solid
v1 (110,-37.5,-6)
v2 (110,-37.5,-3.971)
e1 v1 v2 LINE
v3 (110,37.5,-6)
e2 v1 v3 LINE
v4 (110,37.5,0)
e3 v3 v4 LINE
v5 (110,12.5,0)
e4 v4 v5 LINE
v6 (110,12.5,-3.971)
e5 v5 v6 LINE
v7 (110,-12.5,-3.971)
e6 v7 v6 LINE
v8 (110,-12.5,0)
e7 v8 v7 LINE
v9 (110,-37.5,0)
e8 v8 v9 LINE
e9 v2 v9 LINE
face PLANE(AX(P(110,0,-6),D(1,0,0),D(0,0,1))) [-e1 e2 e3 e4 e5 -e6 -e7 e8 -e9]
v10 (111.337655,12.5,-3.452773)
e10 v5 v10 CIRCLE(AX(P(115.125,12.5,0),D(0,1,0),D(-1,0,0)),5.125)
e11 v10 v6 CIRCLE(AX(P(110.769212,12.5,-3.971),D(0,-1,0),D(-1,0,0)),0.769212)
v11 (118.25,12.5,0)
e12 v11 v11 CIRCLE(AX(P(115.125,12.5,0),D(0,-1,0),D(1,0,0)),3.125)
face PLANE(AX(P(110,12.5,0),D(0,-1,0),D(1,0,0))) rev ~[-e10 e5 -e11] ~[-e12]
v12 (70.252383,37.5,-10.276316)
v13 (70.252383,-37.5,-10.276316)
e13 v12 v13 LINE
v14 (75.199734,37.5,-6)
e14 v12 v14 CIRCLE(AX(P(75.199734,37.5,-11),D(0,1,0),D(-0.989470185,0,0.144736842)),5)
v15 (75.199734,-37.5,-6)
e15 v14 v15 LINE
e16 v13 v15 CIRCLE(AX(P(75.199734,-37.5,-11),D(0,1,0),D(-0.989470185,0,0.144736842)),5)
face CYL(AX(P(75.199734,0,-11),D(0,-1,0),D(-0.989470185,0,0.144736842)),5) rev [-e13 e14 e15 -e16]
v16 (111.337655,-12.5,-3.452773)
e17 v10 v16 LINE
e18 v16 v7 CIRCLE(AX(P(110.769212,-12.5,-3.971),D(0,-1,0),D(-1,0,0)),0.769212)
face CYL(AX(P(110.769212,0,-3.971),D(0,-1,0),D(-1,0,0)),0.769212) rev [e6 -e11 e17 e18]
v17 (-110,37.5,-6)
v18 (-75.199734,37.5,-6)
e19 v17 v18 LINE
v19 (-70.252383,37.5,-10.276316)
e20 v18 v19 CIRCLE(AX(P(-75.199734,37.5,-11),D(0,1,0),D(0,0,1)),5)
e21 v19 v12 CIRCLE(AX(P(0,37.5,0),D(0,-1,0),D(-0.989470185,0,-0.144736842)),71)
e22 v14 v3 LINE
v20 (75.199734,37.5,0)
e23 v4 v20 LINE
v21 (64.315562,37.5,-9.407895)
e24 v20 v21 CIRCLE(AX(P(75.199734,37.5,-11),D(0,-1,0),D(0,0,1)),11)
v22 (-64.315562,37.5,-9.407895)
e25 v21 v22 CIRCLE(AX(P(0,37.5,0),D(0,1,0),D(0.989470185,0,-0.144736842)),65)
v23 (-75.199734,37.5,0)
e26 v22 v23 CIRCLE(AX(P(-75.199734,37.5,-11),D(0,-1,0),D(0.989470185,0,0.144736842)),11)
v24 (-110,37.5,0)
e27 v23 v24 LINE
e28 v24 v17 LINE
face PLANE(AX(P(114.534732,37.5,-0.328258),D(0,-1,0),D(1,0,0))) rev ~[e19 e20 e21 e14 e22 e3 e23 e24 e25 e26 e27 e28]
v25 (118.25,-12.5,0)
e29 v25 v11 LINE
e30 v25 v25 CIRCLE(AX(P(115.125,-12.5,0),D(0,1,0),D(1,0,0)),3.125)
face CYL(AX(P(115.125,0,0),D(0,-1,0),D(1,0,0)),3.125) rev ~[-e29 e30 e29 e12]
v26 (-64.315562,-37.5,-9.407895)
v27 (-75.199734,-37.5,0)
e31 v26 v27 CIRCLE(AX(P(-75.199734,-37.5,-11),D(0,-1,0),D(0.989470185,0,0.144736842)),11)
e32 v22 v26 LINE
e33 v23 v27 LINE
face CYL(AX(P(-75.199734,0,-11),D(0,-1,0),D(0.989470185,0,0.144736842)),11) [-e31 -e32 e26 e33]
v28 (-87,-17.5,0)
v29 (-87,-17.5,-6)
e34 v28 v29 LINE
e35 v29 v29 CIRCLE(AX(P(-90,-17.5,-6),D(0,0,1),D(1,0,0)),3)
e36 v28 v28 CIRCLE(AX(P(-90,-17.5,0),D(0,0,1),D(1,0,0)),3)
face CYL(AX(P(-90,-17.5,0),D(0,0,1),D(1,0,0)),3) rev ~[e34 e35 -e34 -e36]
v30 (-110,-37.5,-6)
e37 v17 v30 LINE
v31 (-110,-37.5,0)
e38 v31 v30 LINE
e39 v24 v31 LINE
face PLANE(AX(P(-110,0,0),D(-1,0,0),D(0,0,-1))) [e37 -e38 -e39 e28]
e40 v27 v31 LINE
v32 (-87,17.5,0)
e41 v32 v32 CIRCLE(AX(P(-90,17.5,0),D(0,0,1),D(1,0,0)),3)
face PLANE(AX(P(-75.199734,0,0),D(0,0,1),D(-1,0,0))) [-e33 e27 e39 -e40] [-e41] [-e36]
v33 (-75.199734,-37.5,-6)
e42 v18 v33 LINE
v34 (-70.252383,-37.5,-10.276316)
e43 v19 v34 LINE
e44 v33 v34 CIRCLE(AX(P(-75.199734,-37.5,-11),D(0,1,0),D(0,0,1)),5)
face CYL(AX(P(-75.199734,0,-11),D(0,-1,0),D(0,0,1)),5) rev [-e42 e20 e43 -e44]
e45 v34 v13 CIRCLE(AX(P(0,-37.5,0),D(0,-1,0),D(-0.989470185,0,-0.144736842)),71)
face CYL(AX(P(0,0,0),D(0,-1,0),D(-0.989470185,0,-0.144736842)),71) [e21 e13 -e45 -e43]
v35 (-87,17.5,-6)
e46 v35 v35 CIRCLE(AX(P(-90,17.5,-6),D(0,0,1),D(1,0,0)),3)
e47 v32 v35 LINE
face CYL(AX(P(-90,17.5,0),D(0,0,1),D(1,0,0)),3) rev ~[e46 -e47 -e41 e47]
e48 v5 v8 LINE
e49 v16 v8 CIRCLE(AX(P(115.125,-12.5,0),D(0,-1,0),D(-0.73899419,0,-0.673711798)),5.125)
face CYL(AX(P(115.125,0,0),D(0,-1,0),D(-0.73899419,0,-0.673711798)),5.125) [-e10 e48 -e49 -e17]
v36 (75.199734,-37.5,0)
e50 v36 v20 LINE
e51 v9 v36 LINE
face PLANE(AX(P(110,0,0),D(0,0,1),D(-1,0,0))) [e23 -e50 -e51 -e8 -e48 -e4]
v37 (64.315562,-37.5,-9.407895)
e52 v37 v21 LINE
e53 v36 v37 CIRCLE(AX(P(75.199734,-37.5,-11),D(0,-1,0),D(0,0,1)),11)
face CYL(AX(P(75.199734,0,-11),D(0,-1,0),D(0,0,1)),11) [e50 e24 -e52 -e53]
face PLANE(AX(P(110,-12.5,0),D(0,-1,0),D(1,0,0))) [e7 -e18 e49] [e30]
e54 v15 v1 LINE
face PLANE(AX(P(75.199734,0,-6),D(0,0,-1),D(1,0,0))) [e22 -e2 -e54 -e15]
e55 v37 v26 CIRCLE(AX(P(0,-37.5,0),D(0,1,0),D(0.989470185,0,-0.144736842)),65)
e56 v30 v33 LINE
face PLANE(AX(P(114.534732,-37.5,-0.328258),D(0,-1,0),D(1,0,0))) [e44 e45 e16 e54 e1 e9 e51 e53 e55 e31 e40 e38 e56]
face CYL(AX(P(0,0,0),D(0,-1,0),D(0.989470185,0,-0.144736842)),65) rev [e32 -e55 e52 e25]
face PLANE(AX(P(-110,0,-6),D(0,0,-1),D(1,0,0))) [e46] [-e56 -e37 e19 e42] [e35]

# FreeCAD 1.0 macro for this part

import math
import FreeCAD as App
import Part
import Sketcher

V = App.Vector
Q = App.Units.Quantity


def add_polygon(sketch, points):
    """Adds a closed chain of lines whose ends are joined by coincident constraints."""
    first, n = sketch.GeometryCount, len(points)
    for a, b in zip(points, points[1:] + points[:1]):
        sketch.addGeometry(Part.LineSegment(App.Vector(*a, 0), App.Vector(*b, 0)), False)
    for i in range(n):
        sketch.addConstraint(Sketcher.Constraint("Coincident", first + i, 2, first + (i + 1) % n, 1))

doc = App.newDocument("Part")
body = doc.addObject("PartDesign::Body", "Body")

sketch1 = body.newObject("Sketcher::SketchObject", "Sketch")
sketch1.AttachmentSupport = (doc.getObject("XZ_Plane"), [""])
sketch1.MapMode = "FlatFace"
sketch1.addGeometry(Part.ArcOfCircle(Part.Circle(V(0, 0, 0), V(0, 0, 1), 65), math.radians(-172), math.radians(-8)), False)
sketch1.addGeometry(Part.ArcOfCircle(Part.Circle(V(-75, -11, 0), V(0, 0, 1), 11), math.radians(8), math.radians(90)), False)
sketch1.addGeometry(Part.LineSegment(V(-75, 0, 0), V(-110, 0, 0)), False)
sketch1.addGeometry(Part.LineSegment(V(-110, 0, 0), V(-110, -6, 0)), False)
sketch1.addGeometry(Part.LineSegment(V(-110, -6, 0), V(-75, -6, 0)), False)
sketch1.addGeometry(Part.ArcOfCircle(Part.Circle(V(-75, -11, 0), V(0, 0, 1), 5), math.radians(8), math.radians(90)), False)
sketch1.addGeometry(Part.ArcOfCircle(Part.Circle(V(0, 0, 0), V(0, 0, 1), 71), math.radians(-172), math.radians(-8)), False)
sketch1.addGeometry(Part.ArcOfCircle(Part.Circle(V(75, -11, 0), V(0, 0, 1), 5), math.radians(90), math.radians(172)), False)
sketch1.addGeometry(Part.LineSegment(V(75, -6, 0), V(110, -6, 0)), False)
sketch1.addGeometry(Part.LineSegment(V(110, -6, 0), V(110, 0, 0)), False)
sketch1.addGeometry(Part.LineSegment(V(110, 0, 0), V(75, 0, 0)), False)
sketch1.addGeometry(Part.ArcOfCircle(Part.Circle(V(75, -11, 0), V(0, 0, 1), 11), math.radians(90), math.radians(172)), False)
sketch1.addConstraint(Sketcher.Constraint("Tangent", 0, 1, 1, 1))
sketch1.addConstraint(Sketcher.Constraint("Tangent", 1, 2, 2, 1))
sketch1.addConstraint(Sketcher.Constraint("Coincident", 2, 2, 3, 1))
sketch1.addConstraint(Sketcher.Constraint("Coincident", 3, 2, 4, 1))
sketch1.addConstraint(Sketcher.Constraint("Tangent", 4, 2, 5, 2))
sketch1.addConstraint(Sketcher.Constraint("Tangent", 5, 1, 6, 1))
sketch1.addConstraint(Sketcher.Constraint("Tangent", 6, 2, 7, 2))
sketch1.addConstraint(Sketcher.Constraint("Tangent", 7, 1, 8, 1))
sketch1.addConstraint(Sketcher.Constraint("Coincident", 8, 2, 9, 1))
sketch1.addConstraint(Sketcher.Constraint("Coincident", 9, 2, 10, 1))
sketch1.addConstraint(Sketcher.Constraint("Tangent", 10, 2, 11, 1))
sketch1.addConstraint(Sketcher.Constraint("Tangent", 11, 2, 0, 2))
sketch1.addConstraint(Sketcher.Constraint("Horizontal", 2))
sketch1.addConstraint(Sketcher.Constraint("Vertical", 3))
sketch1.addConstraint(Sketcher.Constraint("Horizontal", 4))
sketch1.addConstraint(Sketcher.Constraint("Horizontal", 8))
sketch1.addConstraint(Sketcher.Constraint("Vertical", 9))
sketch1.addConstraint(Sketcher.Constraint("Horizontal", 10))
sketch1.addConstraint(Sketcher.Constraint("Coincident", 0, 3, -1, 1))
sketch1.addConstraint(Sketcher.Constraint("Coincident", 6, 3, -1, 1))
sketch1.addConstraint(Sketcher.Constraint("Coincident", 5, 3, 1, 3))
sketch1.addConstraint(Sketcher.Constraint("Coincident", 11, 3, 7, 3))
sketch1.addConstraint(Sketcher.Constraint("Equal", 5, 7))
sketch1.addConstraint(Sketcher.Constraint("Symmetric", 2, 2, 9, 2, -1, 1))
sketch1.addConstraint(Sketcher.Constraint("PointOnObject", 1, 2, -1))
sketch1.addConstraint(Sketcher.Constraint("Radius", 0, Q("65 mm")))
sketch1.addConstraint(Sketcher.Constraint("Radius", 1, Q("11 mm")))
sketch1.addConstraint(Sketcher.Constraint("Radius", 5, Q("5 mm")))
sketch1.addConstraint(Sketcher.Constraint("DistanceX", 2, 2, -1, 1, Q("110 mm")))
pad1 = body.newObject("PartDesign::Pad", "Pad")
pad1.Profile = sketch1
pad1.Length = 75
pad1.Midplane = True

sketch2 = body.newObject("Sketcher::SketchObject", "Sketch001")
sketch2.AttachmentSupport = (doc.getObject("XZ_Plane"), [""])
sketch2.MapMode = "FlatFace"
sketch2.addGeometry(Part.ArcOfCircle(Part.Circle(V(110.8, -4, 0), V(0, 0, 1), 0.8), math.radians(42), math.radians(180)), False)
sketch2.addGeometry(Part.ArcOfCircle(Part.Circle(V(115.1, 0, 0), V(0, 0, 1), 5.1), math.radians(-138), math.radians(180)), False)
sketch2.addGeometry(Part.LineSegment(V(110, 0, 0), V(110, -4, 0)), False)
sketch2.addGeometry(Part.Circle(V(115.1, 0, 0), V(0, 0, 1), 3.1), False)
sketch2.addConstraint(Sketcher.Constraint("Tangent", 0, 1, 1, 1))
sketch2.addConstraint(Sketcher.Constraint("Tangent", 1, 2, 2, 1))
sketch2.addConstraint(Sketcher.Constraint("Tangent", 2, 2, 0, 2))
sketch2.addConstraint(Sketcher.Constraint("Vertical", 2))
sketch2.addConstraint(Sketcher.Constraint("Coincident", 3, 3, 1, 3))
sketch2.addConstraint(Sketcher.Constraint("PointOnObject", 1, 3, -1))
sketch2.addConstraint(Sketcher.Constraint("Diameter", 3, Q("6.25 mm")))
sketch2.addConstraint(Sketcher.Constraint("DistanceX", -1, 1, 1, 2, Q("110 mm")))
sketch2.addConstraint(Sketcher.Constraint("Radius", 1, Q("5.125 mm")))
sketch2.addConstraint(Sketcher.Constraint("DistanceY", 2, 2, 2, 1, Q("3.971 mm")))
pad2 = body.newObject("PartDesign::Pad", "Pad001")
pad2.Profile = sketch2
pad2.Type = "TwoLengths"
pad2.Length = 37.5
pad2.Length2 = 37.5

sketch3 = body.newObject("Sketcher::SketchObject", "Sketch002")
sketch3.AttachmentSupport = (doc.getObject("XY_Plane"), [""])
sketch3.MapMode = "FlatFace"
add_polygon(sketch3, [(110, -12), (110, -39), (126, -39), (126, -12)])
add_polygon(sketch3, [(110, 40), (110, 12), (133, 12), (133, 40)])
sketch3.addConstraint(Sketcher.Constraint("Vertical", 0))
sketch3.addConstraint(Sketcher.Constraint("Horizontal", 1))
sketch3.addConstraint(Sketcher.Constraint("Vertical", 2))
sketch3.addConstraint(Sketcher.Constraint("Horizontal", 3))
sketch3.addConstraint(Sketcher.Constraint("Vertical", 4))
sketch3.addConstraint(Sketcher.Constraint("Horizontal", 5))
sketch3.addConstraint(Sketcher.Constraint("Vertical", 6))
sketch3.addConstraint(Sketcher.Constraint("Horizontal", 7))
sketch3.addConstraint(Sketcher.Constraint("Symmetric", 3, 2, 4, 2, -1))
sketch3.addConstraint(Sketcher.Constraint("DistanceX", -1, 1, 0, 2, Q("110 mm")))
sketch3.addConstraint(Sketcher.Constraint("DistanceY", 3, 2, 4, 2, Q("25 mm")))
sketch3.addConstraint(Sketcher.Constraint("DistanceX", 1, 1, 1, 2, Q("15.712961 mm")))
sketch3.addConstraint(Sketcher.Constraint("DistanceX", 5, 1, 5, 2, Q("22.577285 mm")))
sketch3.addConstraint(Sketcher.Constraint("DistanceY", 0, 2, 0, 1, Q("26.909705 mm")))
sketch3.addConstraint(Sketcher.Constraint("DistanceY", 4, 2, 4, 1, Q("27.529112 mm")))
pocket1 = body.newObject("PartDesign::Pocket", "Pocket")
pocket1.Profile = sketch3
pocket1.Type = "ThroughAll"
pocket1.Midplane = True

sketch4 = body.newObject("Sketcher::SketchObject", "Sketch003")
sketch4.AttachmentSupport = (doc.getObject("XY_Plane"), [""])
sketch4.MapMode = "FlatFace"
sketch4.addGeometry(Part.Circle(V(-90, 17.5, 0), V(0, 0, 1), 3), False)
sketch4.addGeometry(Part.Circle(V(-90, -17.5, 0), V(0, 0, 1), 3), False)
sketch4.addConstraint(Sketcher.Constraint("Equal", 0, 1))
sketch4.addConstraint(Sketcher.Constraint("Symmetric", 0, 3, 1, 3, -1))
sketch4.addConstraint(Sketcher.Constraint("Diameter", 0, Q("6 mm")))
sketch4.addConstraint(Sketcher.Constraint("DistanceX", 0, 3, -1, 1, Q("90 mm")))
sketch4.addConstraint(Sketcher.Constraint("DistanceY", 1, 3, 0, 3, Q("35 mm")))
pocket2 = body.newObject("PartDesign::Pocket", "Pocket001")
pocket2.Profile = sketch4
pocket2.Type = "ThroughAll"

doc.recompute()
